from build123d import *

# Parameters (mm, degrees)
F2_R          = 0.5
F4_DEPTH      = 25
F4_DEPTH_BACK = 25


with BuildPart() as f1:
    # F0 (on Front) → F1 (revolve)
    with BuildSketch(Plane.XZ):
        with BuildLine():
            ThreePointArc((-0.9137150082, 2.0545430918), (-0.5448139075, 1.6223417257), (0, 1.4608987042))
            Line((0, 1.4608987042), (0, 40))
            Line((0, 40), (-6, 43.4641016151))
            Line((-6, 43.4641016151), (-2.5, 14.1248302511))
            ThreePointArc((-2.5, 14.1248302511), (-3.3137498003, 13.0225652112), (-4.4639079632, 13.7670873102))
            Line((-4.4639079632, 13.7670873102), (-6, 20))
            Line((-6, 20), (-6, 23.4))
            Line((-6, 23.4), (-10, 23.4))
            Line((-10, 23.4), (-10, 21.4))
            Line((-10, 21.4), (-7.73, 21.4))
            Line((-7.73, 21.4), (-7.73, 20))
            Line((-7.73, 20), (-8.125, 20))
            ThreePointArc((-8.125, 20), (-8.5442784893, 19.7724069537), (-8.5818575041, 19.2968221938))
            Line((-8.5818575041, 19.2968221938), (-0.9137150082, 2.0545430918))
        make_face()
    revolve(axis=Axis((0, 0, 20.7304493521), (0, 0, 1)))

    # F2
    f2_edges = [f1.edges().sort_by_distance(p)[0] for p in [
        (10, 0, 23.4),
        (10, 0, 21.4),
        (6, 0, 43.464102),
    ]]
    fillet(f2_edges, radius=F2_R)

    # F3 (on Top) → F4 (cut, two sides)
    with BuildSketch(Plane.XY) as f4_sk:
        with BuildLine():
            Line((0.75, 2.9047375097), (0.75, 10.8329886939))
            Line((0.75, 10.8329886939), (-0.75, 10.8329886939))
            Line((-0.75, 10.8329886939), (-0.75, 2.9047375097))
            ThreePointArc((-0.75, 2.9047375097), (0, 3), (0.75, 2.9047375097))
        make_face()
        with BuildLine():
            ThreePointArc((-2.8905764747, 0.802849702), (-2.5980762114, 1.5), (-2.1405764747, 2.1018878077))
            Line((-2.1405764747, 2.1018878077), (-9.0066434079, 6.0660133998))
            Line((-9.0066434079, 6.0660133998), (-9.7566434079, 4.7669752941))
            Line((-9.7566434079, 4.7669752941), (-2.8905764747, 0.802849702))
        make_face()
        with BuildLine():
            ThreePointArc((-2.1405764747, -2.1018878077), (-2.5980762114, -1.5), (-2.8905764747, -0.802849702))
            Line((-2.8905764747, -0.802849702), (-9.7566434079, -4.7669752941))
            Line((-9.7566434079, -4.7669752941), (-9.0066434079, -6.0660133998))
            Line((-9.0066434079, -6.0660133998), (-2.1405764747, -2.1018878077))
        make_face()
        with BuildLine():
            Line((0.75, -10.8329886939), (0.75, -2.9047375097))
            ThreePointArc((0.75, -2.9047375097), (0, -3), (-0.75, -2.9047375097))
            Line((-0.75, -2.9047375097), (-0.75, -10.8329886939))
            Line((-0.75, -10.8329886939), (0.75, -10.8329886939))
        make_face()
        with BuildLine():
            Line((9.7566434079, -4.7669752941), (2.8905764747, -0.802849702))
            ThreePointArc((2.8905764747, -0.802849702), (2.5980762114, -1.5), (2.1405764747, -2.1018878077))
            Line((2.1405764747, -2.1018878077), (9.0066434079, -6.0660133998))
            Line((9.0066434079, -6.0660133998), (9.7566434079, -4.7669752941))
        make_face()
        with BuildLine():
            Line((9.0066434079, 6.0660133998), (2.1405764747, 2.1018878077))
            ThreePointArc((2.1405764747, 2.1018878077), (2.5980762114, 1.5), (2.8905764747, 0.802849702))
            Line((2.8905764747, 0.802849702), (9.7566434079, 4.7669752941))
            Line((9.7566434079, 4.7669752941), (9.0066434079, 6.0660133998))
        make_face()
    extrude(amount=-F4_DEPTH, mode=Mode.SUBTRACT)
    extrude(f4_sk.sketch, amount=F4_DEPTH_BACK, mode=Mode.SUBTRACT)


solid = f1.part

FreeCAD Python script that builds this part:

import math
import FreeCAD as App
import Part
import Sketcher
Q = App.Units.Quantity


def edges_at(feature, points):
    """Names of the edges that pass closest to the given points."""
    edges = feature.Shape.Edges
    near = lambda p: min(range(len(edges)), key=lambda i: edges[i].distToShape(Part.Vertex(*p))[0])
    return sorted({f"Edge{near(p) + 1}" for p in points})

doc = App.newDocument("Part")
body = doc.addObject("PartDesign::Body", "Body")

sketch1 = body.newObject("Sketcher::SketchObject", "Sketch")
sketch1.AttachmentSupport = (doc.getObject("XZ_Plane"), [""])
sketch1.MapMode = "FlatFace"
sketch1.addGeometry([
    Part.ArcOfCircle(Part.Circle(App.Vector(0, 2.46, 0), App.Vector(0, 0, 1), 1), math.radians(-156), math.radians(-90)),
    Part.LineSegment(App.Vector(0, 1.46, 0), App.Vector(0, 40, 0)),
    Part.LineSegment(App.Vector(0, 40, 0), App.Vector(-6, 43.46, 0)),
    Part.LineSegment(App.Vector(-6, 43.46, 0), App.Vector(-2.5, 14.12, 0)),
    Part.ArcOfCircle(Part.Circle(App.Vector(-3.49, 14.01, 0), App.Vector(0, 0, 1), 1), math.radians(-166), math.radians(7)),
    Part.LineSegment(App.Vector(-4.46, 13.77, 0), App.Vector(-6, 20, 0)),
    Part.LineSegment(App.Vector(-6, 20, 0), App.Vector(-6, 23.4, 0)),
    Part.LineSegment(App.Vector(-6, 23.4, 0), App.Vector(-10, 23.4, 0)),
    Part.LineSegment(App.Vector(-10, 23.4, 0), App.Vector(-10, 21.4, 0)),
    Part.LineSegment(App.Vector(-10, 21.4, 0), App.Vector(-7.73, 21.4, 0)),
    Part.LineSegment(App.Vector(-7.73, 21.4, 0), App.Vector(-7.73, 20, 0)),
    Part.LineSegment(App.Vector(-7.73, 20, 0), App.Vector(-8.12, 20, 0)),
    Part.ArcOfCircle(Part.Circle(App.Vector(-8.12, 19.5, 0), App.Vector(0, 0, 1), 0.5), math.radians(90), math.radians(204)),
    Part.LineSegment(App.Vector(-8.58, 19.3, 0), App.Vector(-0.91, 2.05, 0)),
], False)
sketch1.addConstraint([
    Sketcher.Constraint("Coincident", 0, 2, 1, 1),
    Sketcher.Constraint("Coincident", 1, 2, 2, 1),
    Sketcher.Constraint("Coincident", 2, 2, 3, 1),
    Sketcher.Constraint("Tangent", 3, 2, 4, 2),
    Sketcher.Constraint("Tangent", 4, 1, 5, 1),
    Sketcher.Constraint("Coincident", 5, 2, 6, 1),
    Sketcher.Constraint("Coincident", 6, 2, 7, 1),
    Sketcher.Constraint("Coincident", 7, 2, 8, 1),
    Sketcher.Constraint("Coincident", 8, 2, 9, 1),
    Sketcher.Constraint("Coincident", 9, 2, 10, 1),
    Sketcher.Constraint("Coincident", 10, 2, 11, 1),
    Sketcher.Constraint("Tangent", 11, 2, 12, 1),
    Sketcher.Constraint("Tangent", 12, 2, 13, 1),
    Sketcher.Constraint("Tangent", 13, 2, 0, 1),
    Sketcher.Constraint("Vertical", 1),
    Sketcher.Constraint("Vertical", 6),
    Sketcher.Constraint("Horizontal", 7),
    Sketcher.Constraint("Vertical", 8),
    Sketcher.Constraint("Horizontal", 9),
    Sketcher.Constraint("Vertical", 10),
    Sketcher.Constraint("Horizontal", 11),
    Sketcher.Constraint("Equal", 0, 4),
    Sketcher.Constraint("PointOnObject", 0, 3, -2),
    Sketcher.Constraint("PointOnObject", 0, 2, -2),
    Sketcher.Constraint("Horizontal", 5, 2, 10, 2),
    Sketcher.Constraint("Vertical", 2, 2, 5, 2),
    Sketcher.Constraint("Radius", 0, Q("1 mm")),
    Sketcher.Constraint("Radius", 12, Q("0.5 mm")),
    Sketcher.Constraint("DistanceX", 7, 2, 7, 1, Q("4 mm")),
    Sketcher.Constraint("DistanceY", 8, 2, 8, 1, Q("2 mm")),
    Sketcher.Constraint("Angle", 2, Q("150 deg")),
    Sketcher.Constraint("DistanceY", 6, 1, 6, 2, Q("3.4 mm")),
    Sketcher.Constraint("DistanceY", -1, 1, 1, 2, Q("40 mm")),
    Sketcher.Constraint("DistanceX", 2, 2, -1, 1, Q("6 mm")),
    Sketcher.Constraint("DistanceY", -1, 1, 5, 2, Q("20 mm")),
    Sketcher.Constraint("DistanceX", 9, 1, 9, 2, Q("2.27 mm")),
    Sketcher.Constraint("DistanceX", 3, 2, -1, 1, Q("2.5 mm")),
    Sketcher.Constraint("DistanceX", 11, 2, 11, 1, Q("0.395 mm")),
    Sketcher.Constraint("DistanceY", 1, 1, 1, 2, Q("38.539101 mm")),
    Sketcher.Constraint("Distance", 3, Q("29.547298 mm")),
])
revolution = body.newObject("PartDesign::Revolution", "Revolution")
revolution.Profile = sketch1
revolution.ReferenceAxis = (sketch1, ["V_Axis"])
revolution.Angle = 360
doc.recompute()

fillet = body.newObject("PartDesign::Fillet", "Fillet")
fillet.Base = (revolution, edges_at(revolution, [(10, 0, 23.4), (10, 0, 21.4), (6, 0, 43.464)]))
fillet.Radius = 0.5

sketch2 = body.newObject("Sketcher::SketchObject", "Sketch001")
sketch2.AttachmentSupport = (doc.getObject("XY_Plane"), [""])
sketch2.MapMode = "FlatFace"
sketch2.addGeometry([
    Part.LineSegment(App.Vector(0.8, 2.9, 0), App.Vector(0.8, 10.8, 0)),
    Part.LineSegment(App.Vector(0.8, 10.8, 0), App.Vector(-0.8, 10.8, 0)),
    Part.LineSegment(App.Vector(-0.8, 10.8, 0), App.Vector(-0.8, 2.9, 0)),
    Part.ArcOfCircle(Part.Circle(App.Vector(0, 0, 0), App.Vector(0, 0, 1), 3), math.radians(76), math.radians(104)),
    Part.ArcOfCircle(Part.Circle(App.Vector(0, 0, 0), App.Vector(0, 0, 1), 3), math.radians(136), math.radians(164)),
    Part.LineSegment(App.Vector(-2.1, 2.1, 0), App.Vector(-9, 6.1, 0)),
    Part.LineSegment(App.Vector(-9, 6.1, 0), App.Vector(-9.8, 4.8, 0)),
    Part.LineSegment(App.Vector(-9.8, 4.8, 0), App.Vector(-2.9, 0.8, 0)),
    Part.ArcOfCircle(Part.Circle(App.Vector(0, 0, 0), App.Vector(0, 0, 1), 3), math.radians(-164), math.radians(-136)),
    Part.LineSegment(App.Vector(-2.9, -0.8, 0), App.Vector(-9.8, -4.8, 0)),
    Part.LineSegment(App.Vector(-9.8, -4.8, 0), App.Vector(-9, -6.1, 0)),
    Part.LineSegment(App.Vector(-9, -6.1, 0), App.Vector(-2.1, -2.1, 0)),
    Part.LineSegment(App.Vector(0.8, -10.8, 0), App.Vector(0.8, -2.9, 0)),
    Part.ArcOfCircle(Part.Circle(App.Vector(0, 0, 0), App.Vector(0, 0, 1), 3), math.radians(-104), math.radians(-76)),
    Part.LineSegment(App.Vector(-0.8, -2.9, 0), App.Vector(-0.8, -10.8, 0)),
    Part.LineSegment(App.Vector(-0.8, -10.8, 0), App.Vector(0.8, -10.8, 0)),
    Part.LineSegment(App.Vector(9.8, -4.8, 0), App.Vector(2.9, -0.8, 0)),
    Part.ArcOfCircle(Part.Circle(App.Vector(0, 0, 0), App.Vector(0, 0, 1), 3), math.radians(-44), math.radians(-16)),
    Part.LineSegment(App.Vector(2.1, -2.1, 0), App.Vector(9, -6.1, 0)),
    Part.LineSegment(App.Vector(9, -6.1, 0), App.Vector(9.8, -4.8, 0)),
    Part.LineSegment(App.Vector(9, 6.1, 0), App.Vector(2.1, 2.1, 0)),
    Part.ArcOfCircle(Part.Circle(App.Vector(0, 0, 0), App.Vector(0, 0, 1), 3), math.radians(16), math.radians(44)),
    Part.LineSegment(App.Vector(2.9, 0.8, 0), App.Vector(9.8, 4.8, 0)),
    Part.LineSegment(App.Vector(9.8, 4.8, 0), App.Vector(9, 6.1, 0)),
], False)
sketch2.addConstraint([
    Sketcher.Constraint("Coincident", 0, 2, 1, 1),
    Sketcher.Constraint("Coincident", 1, 2, 2, 1),
    Sketcher.Constraint("Coincident", 2, 2, 3, 2),
    Sketcher.Constraint("Coincident", 3, 1, 0, 1),
    Sketcher.Constraint("Coincident", 4, 1, 5, 1),
    Sketcher.Constraint("Coincident", 5, 2, 6, 1),
    Sketcher.Constraint("Coincident", 6, 2, 7, 1),
    Sketcher.Constraint("Coincident", 7, 2, 4, 2),
    Sketcher.Constraint("Coincident", 8, 1, 9, 1),
    Sketcher.Constraint("Coincident", 9, 2, 10, 1),
    Sketcher.Constraint("Coincident", 10, 2, 11, 1),
    Sketcher.Constraint("Coincident", 11, 2, 8, 2),
    Sketcher.Constraint("Coincident", 12, 2, 13, 2),
    Sketcher.Constraint("Coincident", 13, 1, 14, 1),
    Sketcher.Constraint("Coincident", 14, 2, 15, 1),
    Sketcher.Constraint("Coincident", 15, 2, 12, 1),
    Sketcher.Constraint("Coincident", 16, 2, 17, 2),
    Sketcher.Constraint("Coincident", 17, 1, 18, 1),
    Sketcher.Constraint("Coincident", 18, 2, 19, 1),
    Sketcher.Constraint("Coincident", 19, 2, 16, 1),
    Sketcher.Constraint("Coincident", 20, 2, 21, 2),
    Sketcher.Constraint("Coincident", 21, 1, 22, 1),
    Sketcher.Constraint("Coincident", 22, 2, 23, 1),
    Sketcher.Constraint("Coincident", 23, 2, 20, 1),
    Sketcher.Constraint("Vertical", 0),
    Sketcher.Constraint("Horizontal", 1),
    Sketcher.Constraint("Vertical", 2),
    Sketcher.Constraint("Vertical", 12),
    Sketcher.Constraint("Vertical", 14),
    Sketcher.Constraint("Horizontal", 15),
    Sketcher.Constraint("Coincident", 3, 3, -1, 1),
    Sketcher.Constraint("Coincident", 4, 3, -1, 1),
    Sketcher.Constraint("Coincident", 8, 3, -1, 1),
    Sketcher.Constraint("Coincident", 13, 3, -1, 1),
    Sketcher.Constraint("Coincident", 17, 3, -1, 1),
    Sketcher.Constraint("Coincident", 21, 3, -1, 1),
    Sketcher.Constraint("Equal", 3, 4),
    Sketcher.Constraint("Equal", 4, 8),
    Sketcher.Constraint("Equal", 8, 13),
    Sketcher.Constraint("Equal", 13, 17),
    Sketcher.Constraint("Equal", 17, 21),
    Sketcher.Constraint("Symmetric", 0, 2, 14, 2, -1, 1),
    Sketcher.Constraint("Symmetric", 5, 2, 18, 2, -1, 1),
    Sketcher.Constraint("Symmetric", 6, 2, 19, 2, -1, 1),
    Sketcher.Constraint("Symmetric", 9, 2, 22, 2, -1, 1),
    Sketcher.Constraint("Symmetric", 10, 2, 23, 2, -1, 1),
    Sketcher.Constraint("Symmetric", 10, 2, 18, 2, -2),
    Sketcher.Constraint("Symmetric", 9, 2, 19, 2, -2),
    Sketcher.Constraint("Perpendicular", 5, 6),
    Sketcher.Constraint("Perpendicular", 6, 7),
    Sketcher.Constraint("Perpendicular", 9, 10),
    Sketcher.Constraint("Perpendicular", 10, 11),
    Sketcher.Constraint("Parallel", 7, 16),
    Sketcher.Constraint("Parallel", 16, 18),
    Sketcher.Constraint("Parallel", 11, 20),
    Sketcher.Constraint("Parallel", 20, 22),
    Sketcher.Constraint("Horizontal", 2, 2, 3, 1),
    Sketcher.Constraint("Horizontal", 12, 2, 13, 1),
    Sketcher.Constraint("Equal", 5, 7),
    Sketcher.Constraint("Radius", 3, Q("3 mm")),
    Sketcher.Constraint("Angle", 5, Q("150 deg")),
    Sketcher.Constraint("DistanceX", 1, 2, 1, 1, Q("1.5 mm")),
    Sketcher.Constraint("Distance", 6, Q("1.5 mm")),
    Sketcher.Constraint("DistanceY", 0, 1, 0, 2, Q("7.928251 mm")),
    Sketcher.Constraint("DistanceY", 10, 2, 4, 1, Q("8.167901 mm")),
])
pocket1 = body.newObject("PartDesign::Pocket", "Pocket")
pocket1.Profile = sketch2
pocket1.Type = "TwoLengths"
pocket1.Length = 25
pocket1.Length2 = 25

doc.recompute()
